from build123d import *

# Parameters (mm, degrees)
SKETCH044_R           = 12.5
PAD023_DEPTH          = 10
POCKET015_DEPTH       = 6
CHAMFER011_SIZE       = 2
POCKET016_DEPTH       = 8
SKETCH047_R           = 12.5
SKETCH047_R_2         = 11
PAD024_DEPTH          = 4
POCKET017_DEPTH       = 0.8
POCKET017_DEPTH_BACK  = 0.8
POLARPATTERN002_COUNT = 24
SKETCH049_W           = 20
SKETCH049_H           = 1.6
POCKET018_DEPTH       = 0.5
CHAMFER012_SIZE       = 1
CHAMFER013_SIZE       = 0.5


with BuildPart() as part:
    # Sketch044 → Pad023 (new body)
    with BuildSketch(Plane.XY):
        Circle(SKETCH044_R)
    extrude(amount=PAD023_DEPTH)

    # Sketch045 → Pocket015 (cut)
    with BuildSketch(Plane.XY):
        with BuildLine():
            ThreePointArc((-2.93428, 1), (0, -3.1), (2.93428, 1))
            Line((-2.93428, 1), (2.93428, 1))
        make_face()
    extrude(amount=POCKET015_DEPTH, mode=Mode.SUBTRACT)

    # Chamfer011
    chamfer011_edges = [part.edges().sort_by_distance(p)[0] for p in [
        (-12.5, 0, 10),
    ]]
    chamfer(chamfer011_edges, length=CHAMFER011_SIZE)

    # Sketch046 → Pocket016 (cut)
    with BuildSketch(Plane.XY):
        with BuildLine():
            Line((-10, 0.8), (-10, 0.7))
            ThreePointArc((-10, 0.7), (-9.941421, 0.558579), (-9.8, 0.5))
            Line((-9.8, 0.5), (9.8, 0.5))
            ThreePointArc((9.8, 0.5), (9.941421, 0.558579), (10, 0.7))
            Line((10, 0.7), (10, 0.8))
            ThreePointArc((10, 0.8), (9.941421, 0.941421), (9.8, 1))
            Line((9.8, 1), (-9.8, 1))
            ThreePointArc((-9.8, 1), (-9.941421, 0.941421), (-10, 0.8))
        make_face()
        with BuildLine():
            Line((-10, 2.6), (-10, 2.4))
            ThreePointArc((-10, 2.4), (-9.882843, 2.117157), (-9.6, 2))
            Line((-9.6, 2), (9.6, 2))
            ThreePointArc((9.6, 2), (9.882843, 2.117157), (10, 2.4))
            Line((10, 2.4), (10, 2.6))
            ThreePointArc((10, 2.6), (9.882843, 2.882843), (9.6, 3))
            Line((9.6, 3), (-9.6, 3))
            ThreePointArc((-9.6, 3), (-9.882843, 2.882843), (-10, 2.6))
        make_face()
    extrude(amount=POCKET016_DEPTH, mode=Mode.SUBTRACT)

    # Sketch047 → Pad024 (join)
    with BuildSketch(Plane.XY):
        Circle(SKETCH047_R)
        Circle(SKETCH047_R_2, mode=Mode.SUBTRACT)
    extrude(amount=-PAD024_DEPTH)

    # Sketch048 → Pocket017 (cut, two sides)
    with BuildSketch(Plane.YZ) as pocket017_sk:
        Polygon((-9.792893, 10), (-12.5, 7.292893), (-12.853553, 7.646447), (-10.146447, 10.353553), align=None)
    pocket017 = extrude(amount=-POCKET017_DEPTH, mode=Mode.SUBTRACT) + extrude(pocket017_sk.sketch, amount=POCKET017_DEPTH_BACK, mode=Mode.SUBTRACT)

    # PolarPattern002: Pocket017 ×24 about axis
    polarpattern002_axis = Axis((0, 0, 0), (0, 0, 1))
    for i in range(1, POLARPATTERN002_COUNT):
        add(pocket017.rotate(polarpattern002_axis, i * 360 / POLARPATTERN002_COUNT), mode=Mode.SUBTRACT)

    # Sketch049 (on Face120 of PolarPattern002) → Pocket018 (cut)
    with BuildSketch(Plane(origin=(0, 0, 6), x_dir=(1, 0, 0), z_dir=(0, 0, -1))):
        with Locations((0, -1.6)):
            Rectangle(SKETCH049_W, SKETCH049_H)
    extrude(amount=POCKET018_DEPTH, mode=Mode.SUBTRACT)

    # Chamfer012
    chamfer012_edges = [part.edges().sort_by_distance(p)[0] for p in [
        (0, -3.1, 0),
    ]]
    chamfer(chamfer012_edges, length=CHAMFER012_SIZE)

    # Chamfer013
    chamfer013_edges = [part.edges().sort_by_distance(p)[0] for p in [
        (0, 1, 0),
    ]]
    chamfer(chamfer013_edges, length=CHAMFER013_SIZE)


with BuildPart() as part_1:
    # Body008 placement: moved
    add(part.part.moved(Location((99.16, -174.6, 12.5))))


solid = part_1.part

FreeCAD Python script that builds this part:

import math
import FreeCAD as App
import Part
import Sketcher
from FreeCAD import Vector
Q = App.Units.Quantity


def edges_at(feature, points):
    """Names of the edges that pass closest to the given points."""
    edges = feature.Shape.Edges
    near = lambda p: min(range(len(edges)), key=lambda i: edges[i].distToShape(Part.Vertex(*p))[0])
    return sorted({f"Edge{near(p) + 1}" for p in points})

doc = App.newDocument("Part")
body = doc.addObject("PartDesign::Body", "Body")

# Sketch on XY plane
sketch1 = body.newObject("Sketcher::SketchObject", "Sketch")
sketch1.AttachmentSupport = (doc.getObject("XY_Plane"), [""])
sketch1.MapMode = "FlatFace"
sketch1.addGeometry(Part.Circle(Vector(0, 0, 0), Vector(0, 0, 1), 12.5), False)
sketch1.addConstraint([
    Sketcher.Constraint("Coincident", 0, 3, -1, 1),
    Sketcher.Constraint("Diameter", 0, Q("25 mm")),
])
pad1 = body.newObject("PartDesign::Pad", "Pad")
pad1.Profile = sketch1
pad1.Length = 10

# Sketch on XY plane
sketch2 = body.newObject("Sketcher::SketchObject", "Sketch001")
sketch2.AttachmentSupport = (doc.getObject("XY_Plane"), [""])
sketch2.MapMode = "FlatFace"
sketch2.addGeometry([
    Part.ArcOfCircle(Part.Circle(Vector(0, 0, 0), Vector(0, 0, 1), 3.1), math.radians(161.180934), math.radians(378.819066)),
    Part.LineSegment(Vector(2.93428, 1, 0), Vector(-2.93428, 1, 0)),
], False)
sketch2.addConstraint([
    Sketcher.Constraint("Coincident", 0, 1, 1, 2),
    Sketcher.Constraint("Coincident", 1, 1, 0, 2),
    Sketcher.Constraint("Horizontal", 1),
    Sketcher.Constraint("Coincident", 0, 3, -1, 1),
    Sketcher.Constraint("Radius", 0, Q("3.1 mm")),
    Sketcher.Constraint("DistanceY", -1, 1, 0, 1, Q("1 mm")),
])
pocket1 = body.newObject("PartDesign::Pocket", "Pocket")
pocket1.Profile = sketch2
pocket1.Length = 6
pocket1.Reversed = True
doc.recompute()

chamfer = body.newObject("PartDesign::Chamfer", "Chamfer")
chamfer.Base = (pocket1, edges_at(pocket1, [(-12.5, 0, 10)]))
chamfer.Size = 2

# Sketch on XY plane
sketch3 = body.newObject("Sketcher::SketchObject", "Sketch002")
sketch3.AttachmentSupport = (doc.getObject("XY_Plane"), [""])
sketch3.MapMode = "FlatFace"
sketch3.addGeometry([
    Part.LineSegment(Vector(-10, 0.8, 0), Vector(-10, 0.7, 0)),  # 0
    Part.ArcOfCircle(Part.Circle(Vector(-9.799999, 0.700001, 0), Vector(0, 0, 1), 0.200001), math.radians(-179.999652), math.radians(-90.000348)),  # 1
    Part.LineSegment(Vector(-9.8, 0.5, 0), Vector(9.8, 0.5, 0)),  # 2
    Part.ArcOfCircle(Part.Circle(Vector(9.799999, 0.700001, 0), Vector(0, 0, 1), 0.200001), math.radians(-89.999652), math.radians(-0.000348)),  # 3
    Part.LineSegment(Vector(10, 0.7, 0), Vector(10, 0.8, 0)),  # 4
    Part.ArcOfCircle(Part.Circle(Vector(9.799999, 0.799999, 0), Vector(0, 0, 1), 0.200001), math.radians(0.000348), math.radians(89.999652)),  # 5
    Part.LineSegment(Vector(9.8, 1, 0), Vector(-9.8, 1, 0)),  # 6
    Part.ArcOfCircle(Part.Circle(Vector(-9.799999, 0.799999, 0), Vector(0, 0, 1), 0.200001), math.radians(90.000348), math.radians(179.999652)),  # 7
    Part.LineSegment(Vector(-10, 2.6, 0), Vector(-10, 2.4, 0)),  # 8
    Part.ArcOfCircle(Part.Circle(Vector(-9.600001, 2.399999, 0), Vector(0, 0, 1), 0.399999), math.radians(179.999859), math.radians(270.000141)),  # 9
    Part.LineSegment(Vector(-9.6, 2, 0), Vector(9.6, 2, 0)),  # 10
    Part.ArcOfCircle(Part.Circle(Vector(9.600001, 2.399999, 0), Vector(0, 0, 1), 0.399999), math.radians(-90.000141), math.radians(0.000141)),  # 11
    Part.LineSegment(Vector(10, 2.4, 0), Vector(10, 2.6, 0)),  # 12
    Part.ArcOfCircle(Part.Circle(Vector(9.600001, 2.600001, 0), Vector(0, 0, 1), 0.399999), math.radians(-0.000141), math.radians(90.000141)),  # 13
    Part.LineSegment(Vector(9.6, 3, 0), Vector(-9.6, 3, 0)),  # 14
    Part.ArcOfCircle(Part.Circle(Vector(-9.600001, 2.600001, 0), Vector(0, 0, 1), 0.399999), math.radians(89.999859), math.radians(180.000141)),  # 15
], False)
sketch3.addConstraint([
    Sketcher.Constraint("Coincident", 0, 2, 1, 1),
    Sketcher.Constraint("Coincident", 1, 2, 2, 1),
    Sketcher.Constraint("Coincident", 2, 2, 3, 1),
    Sketcher.Constraint("Coincident", 3, 2, 4, 1),
    Sketcher.Constraint("Coincident", 4, 2, 5, 1),
    Sketcher.Constraint("Coincident", 5, 2, 6, 1),
    Sketcher.Constraint("Coincident", 6, 2, 7, 1),
    Sketcher.Constraint("Coincident", 7, 2, 0, 1),
    Sketcher.Constraint("Coincident", 8, 2, 9, 1),
    Sketcher.Constraint("Coincident", 9, 2, 10, 1),
    Sketcher.Constraint("Coincident", 10, 2, 11, 1),
    Sketcher.Constraint("Coincident", 11, 2, 12, 1),
    Sketcher.Constraint("Coincident", 12, 2, 13, 1),
    Sketcher.Constraint("Coincident", 13, 2, 14, 1),
    Sketcher.Constraint("Coincident", 14, 2, 15, 1),
    Sketcher.Constraint("Coincident", 15, 2, 8, 1),
    Sketcher.Constraint("Vertical", 0),
    Sketcher.Constraint("Horizontal", 2),
    Sketcher.Constraint("Vertical", 4),
    Sketcher.Constraint("Horizontal", 6),
    Sketcher.Constraint("Vertical", 8),
    Sketcher.Constraint("Horizontal", 10),
    Sketcher.Constraint("Vertical", 12),
    Sketcher.Constraint("Horizontal", 14),
    Sketcher.Constraint("Equal", 1, 3),
    Sketcher.Constraint("Equal", 3, 5),
    Sketcher.Constraint("Equal", 5, 7),
    Sketcher.Constraint("Equal", 9, 11),
    Sketcher.Constraint("Equal", 11, 13),
    Sketcher.Constraint("Equal", 13, 15),
    Sketcher.Constraint("Symmetric", 0, 2, 3, 2, -2),
    Sketcher.Constraint("Symmetric", 8, 2, 11, 2, -2),
    Sketcher.Constraint("Horizontal", 3, 3, 0, 2),
    Sketcher.Constraint("Horizontal", 7, 3, 4, 2),
    Sketcher.Constraint("Horizontal", 4, 2, 7, 2),
    Sketcher.Constraint("Horizontal", 11, 3, 8, 2),
    Sketcher.Constraint("Horizontal", 15, 3, 12, 2),
    Sketcher.Constraint("Horizontal", 12, 2, 15, 2),
    Sketcher.Constraint("Vertical", 7, 3, 1, 2),
    Sketcher.Constraint("Vertical", 5, 3, 2, 2),
    Sketcher.Constraint("Vertical", 2, 2, 5, 2),
    Sketcher.Constraint("Vertical", 1, 2, 6, 2),
    Sketcher.Constraint("Vertical", 7, 2, 8, 2),
    Sketcher.Constraint("Vertical", 15, 3, 9, 2),
    Sketcher.Constraint("Vertical", 13, 3, 10, 2),
    Sketcher.Constraint("Vertical", 10, 2, 13, 2),
    Sketcher.Constraint("Vertical", 9, 2, 14, 2),
    Sketcher.Constraint("Radius", 1, Q("0.200001 mm")),
    Sketcher.Constraint("Radius", 9, Q("0.399999 mm")),
    Sketcher.Constraint("DistanceX", 2, 1, 2, 2, Q("19.6 mm")),
    Sketcher.Constraint("DistanceY", 0, 2, 0, 1, Q("0.1 mm")),
    Sketcher.Constraint("DistanceY", 8, 2, 8, 1, Q("0.2 mm")),
    Sketcher.Constraint("DistanceY", -1, 1, 5, 2, Q("1 mm")),
    Sketcher.Constraint("DistanceY", -1, 1, 9, 2, Q("2 mm")),
])
pocket2 = body.newObject("PartDesign::Pocket", "Pocket001")
pocket2.Profile = sketch3
pocket2.Length = 8
pocket2.Reversed = True

# Sketch on XY plane
sketch4 = body.newObject("Sketcher::SketchObject", "Sketch003")
sketch4.AttachmentSupport = (doc.getObject("XY_Plane"), [""])
sketch4.MapMode = "FlatFace"
sketch4.addGeometry([
    Part.Circle(Vector(0, 0, 0), Vector(0, 0, 1), 12.5),
    Part.Circle(Vector(0, 0, 0), Vector(0, 0, 1), 11),
], False)
sketch4.addConstraint([
    Sketcher.Constraint("Coincident", 0, 3, -1, 1),
    Sketcher.Constraint("Coincident", 1, 3, -1, 1),
    Sketcher.Constraint("Diameter", 0, Q("25 mm")),
    Sketcher.Constraint("Diameter", 1, Q("22 mm")),
])
pad2 = body.newObject("PartDesign::Pad", "Pad001")
pad2.Profile = sketch4
pad2.Length = 4
pad2.Reversed = True

# Sketch on YZ plane
sketch5 = body.newObject("Sketcher::SketchObject", "Sketch004")
sketch5.AttachmentSupport = (doc.getObject("YZ_Plane"), [""])
sketch5.MapMode = "FlatFace"
sketch5.addGeometry([
    Part.LineSegment(Vector(-12.5, 7.292893, 0), Vector(-9.792893, 10, 0)),
    Part.LineSegment(Vector(-9.792893, 10, 0), Vector(-10.146447, 10.353553, 0)),
    Part.LineSegment(Vector(-10.146447, 10.353553, 0), Vector(-12.853553, 7.646447, 0)),
    Part.LineSegment(Vector(-12.853553, 7.646447, 0), Vector(-12.5, 7.292893, 0)),
], False)
sketch5.addConstraint([
    Sketcher.Constraint("Coincident", 0, 2, 1, 1),
    Sketcher.Constraint("Coincident", 1, 2, 2, 1),
    Sketcher.Constraint("Coincident", 2, 2, 3, 1),
    Sketcher.Constraint("Coincident", 3, 2, 0, 1),
    Sketcher.Constraint("Perpendicular", 0, 1),
    Sketcher.Constraint("Perpendicular", 1, 2),
    Sketcher.Constraint("Perpendicular", 2, 3),
    Sketcher.Constraint("Angle", 0, Q("45 deg")),
    Sketcher.Constraint("DistanceY", -1, 1, 0, 2, Q("10 mm")),
    Sketcher.Constraint("Distance", 1, Q("0.5 mm")),
    Sketcher.Constraint("DistanceX", 3, 2, -1, 1, Q("12.5 mm")),
    Sketcher.Constraint("DistanceX", 2, 2, 0, 2, Q("3.06066 mm")),
])
pocket3 = body.newObject("PartDesign::Pocket", "Pocket002")
pocket3.Profile = sketch5
pocket3.Type = "TwoLengths"
pocket3.Length = 0.8
pocket3.Length2 = 0.8
doc.recompute()

polarpattern = body.newObject("PartDesign::PolarPattern", "PolarPattern")
polarpattern.Originals = [pocket3]
polarpattern.Axis = (doc.getObject("Z_Axis"), [""])
polarpattern.Angle = 360
polarpattern.Occurrences = 24
body.Tip = polarpattern

# Sketch on XY plane
sketch6 = body.newObject("Sketcher::SketchObject", "Sketch005")
sketch6.AttachmentSupport = (doc.getObject("XY_Plane"), [""])
sketch6.MapMode = "FlatFace"
sketch6.AttachmentOffset = App.Placement(Vector(0, 0, 6), App.Rotation())
sketch6.addGeometry([
    Part.LineSegment(Vector(-10, 0.8, 0), Vector(-10, 2.4, 0)),
    Part.LineSegment(Vector(-10, 2.4, 0), Vector(10, 2.4, 0)),
    Part.LineSegment(Vector(10, 2.4, 0), Vector(10, 0.8, 0)),
    Part.LineSegment(Vector(10, 0.8, 0), Vector(-10, 0.8, 0)),
], False)
sketch6.addConstraint([
    Sketcher.Constraint("Coincident", 0, 2, 1, 1),
    Sketcher.Constraint("Coincident", 1, 2, 2, 1),
    Sketcher.Constraint("Coincident", 2, 2, 3, 1),
    Sketcher.Constraint("Coincident", 3, 2, 0, 1),
    Sketcher.Constraint("Vertical", 0),
    Sketcher.Constraint("Horizontal", 1),
    Sketcher.Constraint("Vertical", 2),
    Sketcher.Constraint("Horizontal", 3),
    Sketcher.Constraint("DistanceX", 1, 1, 1, 2, Q("20 mm")),
    Sketcher.Constraint("DistanceY", 0, 1, 0, 2, Q("1.6 mm")),
    Sketcher.Constraint("DistanceX", 0, 2, -1, 1, Q("10 mm")),
    Sketcher.Constraint("DistanceY", -1, 1, 0, 2, Q("2.4 mm")),
])
pocket4 = body.newObject("PartDesign::Pocket", "Pocket003")
pocket4.Profile = sketch6
pocket4.Length = 0.5
doc.recompute()

chamfer2 = body.newObject("PartDesign::Chamfer", "Chamfer001")
chamfer2.Base = (pocket4, edges_at(pocket4, [(0, -3.1, 0)]))
chamfer2.Size = 1
doc.recompute()

chamfer3 = body.newObject("PartDesign::Chamfer", "Chamfer002")
chamfer3.Base = (chamfer2, edges_at(chamfer2, [(0, 1, 0)]))
chamfer3.Size = 0.5
body2 = doc.addObject("PartDesign::Body", "Body001")
doc.recompute()

body.Placement = App.Placement(Vector(99.16, -174.6, 12.5), App.Rotation(Vector(0, 0, 1), 0))
boolean = body2.newObject("PartDesign::Boolean", "Boolean")
boolean.Type = "Fuse"
boolean.addObjects([body])

doc.recompute()
